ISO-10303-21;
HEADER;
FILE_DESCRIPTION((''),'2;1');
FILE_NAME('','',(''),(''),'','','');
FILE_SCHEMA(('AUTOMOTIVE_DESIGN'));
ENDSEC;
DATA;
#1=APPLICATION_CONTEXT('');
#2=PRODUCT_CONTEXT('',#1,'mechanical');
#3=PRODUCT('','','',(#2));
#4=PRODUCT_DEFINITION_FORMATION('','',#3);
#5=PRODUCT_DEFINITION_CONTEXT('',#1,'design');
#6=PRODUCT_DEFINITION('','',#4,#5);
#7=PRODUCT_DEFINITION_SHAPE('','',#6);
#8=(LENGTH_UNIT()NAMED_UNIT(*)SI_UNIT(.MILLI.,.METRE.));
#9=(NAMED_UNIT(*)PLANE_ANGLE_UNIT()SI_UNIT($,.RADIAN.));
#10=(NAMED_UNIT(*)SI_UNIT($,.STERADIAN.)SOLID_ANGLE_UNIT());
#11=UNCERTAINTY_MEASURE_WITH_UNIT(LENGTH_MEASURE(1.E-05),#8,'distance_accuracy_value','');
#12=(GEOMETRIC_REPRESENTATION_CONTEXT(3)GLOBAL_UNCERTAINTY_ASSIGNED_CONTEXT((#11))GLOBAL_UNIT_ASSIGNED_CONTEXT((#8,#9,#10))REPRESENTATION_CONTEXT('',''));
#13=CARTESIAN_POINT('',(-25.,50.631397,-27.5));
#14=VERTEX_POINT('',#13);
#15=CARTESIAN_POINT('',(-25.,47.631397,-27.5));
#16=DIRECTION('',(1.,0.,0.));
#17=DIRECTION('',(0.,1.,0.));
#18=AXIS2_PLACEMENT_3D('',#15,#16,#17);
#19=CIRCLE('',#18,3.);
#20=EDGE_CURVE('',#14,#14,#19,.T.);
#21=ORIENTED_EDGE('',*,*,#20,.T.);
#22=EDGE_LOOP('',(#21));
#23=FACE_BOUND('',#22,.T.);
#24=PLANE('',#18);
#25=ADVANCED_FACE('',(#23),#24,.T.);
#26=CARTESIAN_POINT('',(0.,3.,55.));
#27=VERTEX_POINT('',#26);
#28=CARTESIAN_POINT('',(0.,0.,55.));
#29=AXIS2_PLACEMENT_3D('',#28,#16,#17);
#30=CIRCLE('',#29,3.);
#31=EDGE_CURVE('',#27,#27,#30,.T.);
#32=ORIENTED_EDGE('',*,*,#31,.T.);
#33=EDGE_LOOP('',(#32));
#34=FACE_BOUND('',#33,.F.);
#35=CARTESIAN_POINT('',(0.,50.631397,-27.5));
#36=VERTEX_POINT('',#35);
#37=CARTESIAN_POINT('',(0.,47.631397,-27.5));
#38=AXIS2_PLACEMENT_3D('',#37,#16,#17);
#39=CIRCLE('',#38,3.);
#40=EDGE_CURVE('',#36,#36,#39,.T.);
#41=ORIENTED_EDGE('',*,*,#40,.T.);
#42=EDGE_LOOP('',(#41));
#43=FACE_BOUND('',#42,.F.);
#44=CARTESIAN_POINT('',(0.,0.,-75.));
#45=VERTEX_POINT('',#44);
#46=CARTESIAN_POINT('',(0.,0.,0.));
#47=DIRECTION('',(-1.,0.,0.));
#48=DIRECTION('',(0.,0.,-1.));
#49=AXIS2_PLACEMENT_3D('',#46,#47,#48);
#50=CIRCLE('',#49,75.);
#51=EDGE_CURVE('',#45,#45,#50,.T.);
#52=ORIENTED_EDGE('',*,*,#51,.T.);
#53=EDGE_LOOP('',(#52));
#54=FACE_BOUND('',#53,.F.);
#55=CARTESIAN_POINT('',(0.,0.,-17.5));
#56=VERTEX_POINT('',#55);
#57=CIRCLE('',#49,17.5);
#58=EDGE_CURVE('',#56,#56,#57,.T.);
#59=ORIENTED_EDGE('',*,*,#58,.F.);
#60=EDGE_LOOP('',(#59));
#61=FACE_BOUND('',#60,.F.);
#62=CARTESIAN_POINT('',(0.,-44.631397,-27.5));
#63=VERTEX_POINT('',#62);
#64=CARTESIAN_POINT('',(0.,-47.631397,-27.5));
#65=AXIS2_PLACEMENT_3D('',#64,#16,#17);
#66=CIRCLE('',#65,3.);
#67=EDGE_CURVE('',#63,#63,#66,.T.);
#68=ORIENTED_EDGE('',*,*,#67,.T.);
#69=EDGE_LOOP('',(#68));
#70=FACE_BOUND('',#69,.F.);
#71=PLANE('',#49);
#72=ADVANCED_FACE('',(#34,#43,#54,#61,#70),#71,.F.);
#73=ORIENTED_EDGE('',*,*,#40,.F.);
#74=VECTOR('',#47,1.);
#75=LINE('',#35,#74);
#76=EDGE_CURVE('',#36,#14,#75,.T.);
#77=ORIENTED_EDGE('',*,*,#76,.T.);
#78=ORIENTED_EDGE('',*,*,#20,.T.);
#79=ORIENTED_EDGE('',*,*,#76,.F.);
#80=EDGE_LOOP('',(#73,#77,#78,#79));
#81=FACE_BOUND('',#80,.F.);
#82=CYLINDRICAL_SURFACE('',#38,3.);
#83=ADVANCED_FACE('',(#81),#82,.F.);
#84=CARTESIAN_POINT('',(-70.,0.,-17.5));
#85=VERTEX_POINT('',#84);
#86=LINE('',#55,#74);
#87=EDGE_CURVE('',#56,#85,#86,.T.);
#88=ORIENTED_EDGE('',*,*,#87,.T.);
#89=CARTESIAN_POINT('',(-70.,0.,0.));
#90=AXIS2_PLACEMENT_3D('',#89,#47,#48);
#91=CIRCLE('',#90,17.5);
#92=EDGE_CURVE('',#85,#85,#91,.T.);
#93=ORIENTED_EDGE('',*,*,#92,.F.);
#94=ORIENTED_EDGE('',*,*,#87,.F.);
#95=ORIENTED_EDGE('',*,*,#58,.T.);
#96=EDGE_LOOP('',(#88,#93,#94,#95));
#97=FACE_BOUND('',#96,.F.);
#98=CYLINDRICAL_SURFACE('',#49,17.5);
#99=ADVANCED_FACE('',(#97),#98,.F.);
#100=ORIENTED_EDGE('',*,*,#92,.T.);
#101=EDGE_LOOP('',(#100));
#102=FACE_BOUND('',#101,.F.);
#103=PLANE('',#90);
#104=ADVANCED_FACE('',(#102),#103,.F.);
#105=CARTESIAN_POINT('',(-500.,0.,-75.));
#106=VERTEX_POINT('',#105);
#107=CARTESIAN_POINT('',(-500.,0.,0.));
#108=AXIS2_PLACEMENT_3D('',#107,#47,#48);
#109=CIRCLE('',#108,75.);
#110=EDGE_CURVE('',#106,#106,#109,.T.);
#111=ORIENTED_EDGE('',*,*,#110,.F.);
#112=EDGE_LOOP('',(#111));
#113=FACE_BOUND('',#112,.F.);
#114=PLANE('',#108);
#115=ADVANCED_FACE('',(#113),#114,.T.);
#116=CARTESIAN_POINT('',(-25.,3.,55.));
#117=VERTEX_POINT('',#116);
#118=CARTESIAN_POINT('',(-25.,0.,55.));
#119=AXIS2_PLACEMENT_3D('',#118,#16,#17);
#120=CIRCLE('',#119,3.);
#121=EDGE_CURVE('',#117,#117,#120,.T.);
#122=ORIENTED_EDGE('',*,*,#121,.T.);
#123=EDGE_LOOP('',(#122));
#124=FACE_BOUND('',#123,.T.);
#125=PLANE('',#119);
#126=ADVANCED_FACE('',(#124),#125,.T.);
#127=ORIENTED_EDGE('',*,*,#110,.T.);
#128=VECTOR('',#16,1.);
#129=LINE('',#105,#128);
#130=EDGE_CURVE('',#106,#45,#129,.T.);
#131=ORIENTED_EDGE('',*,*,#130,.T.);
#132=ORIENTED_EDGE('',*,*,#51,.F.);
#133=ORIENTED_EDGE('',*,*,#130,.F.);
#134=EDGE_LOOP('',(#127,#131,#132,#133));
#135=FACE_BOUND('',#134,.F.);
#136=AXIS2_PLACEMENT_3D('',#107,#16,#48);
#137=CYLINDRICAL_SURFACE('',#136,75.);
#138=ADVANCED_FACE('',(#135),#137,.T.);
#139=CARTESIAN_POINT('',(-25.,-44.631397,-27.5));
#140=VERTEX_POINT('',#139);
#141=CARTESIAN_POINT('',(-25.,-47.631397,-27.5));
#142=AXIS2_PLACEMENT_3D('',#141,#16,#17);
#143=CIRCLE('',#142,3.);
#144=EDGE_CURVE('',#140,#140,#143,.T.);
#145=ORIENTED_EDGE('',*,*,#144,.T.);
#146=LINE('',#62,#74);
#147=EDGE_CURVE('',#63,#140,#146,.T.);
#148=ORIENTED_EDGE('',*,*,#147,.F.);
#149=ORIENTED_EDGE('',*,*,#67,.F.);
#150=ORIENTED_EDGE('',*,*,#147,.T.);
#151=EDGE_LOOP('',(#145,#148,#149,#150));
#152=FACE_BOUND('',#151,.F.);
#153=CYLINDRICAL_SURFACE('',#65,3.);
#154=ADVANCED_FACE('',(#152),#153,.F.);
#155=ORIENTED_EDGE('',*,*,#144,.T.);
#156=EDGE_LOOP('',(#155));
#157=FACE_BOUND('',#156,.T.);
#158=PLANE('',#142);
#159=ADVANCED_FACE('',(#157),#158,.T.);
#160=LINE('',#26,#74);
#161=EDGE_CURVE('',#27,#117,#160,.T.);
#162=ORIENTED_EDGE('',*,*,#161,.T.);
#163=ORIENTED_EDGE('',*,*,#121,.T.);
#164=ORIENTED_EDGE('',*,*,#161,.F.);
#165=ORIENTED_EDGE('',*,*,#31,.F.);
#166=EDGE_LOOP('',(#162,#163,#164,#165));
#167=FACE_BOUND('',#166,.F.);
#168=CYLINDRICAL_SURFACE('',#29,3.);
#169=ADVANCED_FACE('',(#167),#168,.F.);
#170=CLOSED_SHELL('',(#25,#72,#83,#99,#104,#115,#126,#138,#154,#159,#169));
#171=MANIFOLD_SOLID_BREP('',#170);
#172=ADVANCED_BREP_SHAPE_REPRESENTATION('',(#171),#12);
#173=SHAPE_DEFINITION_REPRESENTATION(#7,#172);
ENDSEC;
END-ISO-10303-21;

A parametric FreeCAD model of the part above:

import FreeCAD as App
import Part
import Sketcher
from FreeCAD import Vector
Q = App.Units.Quantity

doc = App.newDocument("Part")
body = doc.addObject("PartDesign::Body", "Body")

sketch1 = body.newObject("Sketcher::SketchObject", "Sketch")
sketch1.AttachmentSupport = (doc.getObject("XZ_Plane"), [""])
sketch1.MapMode = "FlatFace"
sketch1.addGeometry(Part.LineSegment(Vector(-500, -75, 0), Vector(0, -75, 0)), False)
sketch1.addGeometry(Part.LineSegment(Vector(0, -75, 0), Vector(0, -18, 0)), False)
sketch1.addGeometry(Part.LineSegment(Vector(0, -18, 0), Vector(-70, -18, 0)), False)
sketch1.addGeometry(Part.LineSegment(Vector(-70, -18, 0), Vector(-70, 0, 0)), False)
sketch1.addGeometry(Part.LineSegment(Vector(-70, 0, 0), Vector(-500, 0, 0)), False)
sketch1.addGeometry(Part.LineSegment(Vector(-500, 0, 0), Vector(-500, -75, 0)), False)
sketch1.addConstraint(Sketcher.Constraint("Coincident", 0, 2, 1, 1))
sketch1.addConstraint(Sketcher.Constraint("Coincident", 1, 2, 2, 1))
sketch1.addConstraint(Sketcher.Constraint("Coincident", 2, 2, 3, 1))
sketch1.addConstraint(Sketcher.Constraint("Coincident", 3, 2, 4, 1))
sketch1.addConstraint(Sketcher.Constraint("Coincident", 4, 2, 5, 1))
sketch1.addConstraint(Sketcher.Constraint("Coincident", 5, 2, 0, 1))
sketch1.addConstraint(Sketcher.Constraint("Horizontal", 0))
sketch1.addConstraint(Sketcher.Constraint("Vertical", 1))
sketch1.addConstraint(Sketcher.Constraint("Horizontal", 2))
sketch1.addConstraint(Sketcher.Constraint("Vertical", 3))
sketch1.addConstraint(Sketcher.Constraint("Horizontal", 4))
sketch1.addConstraint(Sketcher.Constraint("Vertical", 5))
sketch1.addConstraint(Sketcher.Constraint("PointOnObject", 0, 2, -2))
sketch1.addConstraint(Sketcher.Constraint("PointOnObject", 3, 2, -1))
sketch1.addConstraint(Sketcher.Constraint("DistanceX", 0, 1, 0, 2, Q("500 mm")))
sketch1.addConstraint(Sketcher.Constraint("DistanceX", 2, 2, 2, 1, Q("70 mm")))
sketch1.addConstraint(Sketcher.Constraint("DistanceY", 5, 2, 5, 1, Q("75 mm")))
sketch1.addConstraint(Sketcher.Constraint("DistanceY", 1, 1, 1, 2, Q("57.5 mm")))
revolution = body.newObject("PartDesign::Revolution", "Revolution")
revolution.Profile = sketch1
revolution.ReferenceAxis = (sketch1, ["H_Axis"])
revolution.Angle = 360

sketch2 = body.newObject("Sketcher::SketchObject", "Sketch001")
sketch2.AttachmentSupport = (doc.getObject("YZ_Plane"), [""])
sketch2.MapMode = "FlatFace"
sketch2.addGeometry(Part.Circle(Vector(0, 55, 0), Vector(0, 0, 1), 3), False)
sketch2.addGeometry(Part.Circle(Vector(-47.6, -27.5, 0), Vector(0, 0, 1), 3), False)
sketch2.addGeometry(Part.Circle(Vector(47.6, -27.5, 0), Vector(0, 0, 1), 3), False)
sketch2.addConstraint(Sketcher.Constraint("Equal", 0, 1))
sketch2.addConstraint(Sketcher.Constraint("Equal", 1, 2))
sketch2.addConstraint(Sketcher.Constraint("Symmetric", 1, 3, 2, 3, -2))
sketch2.addConstraint(Sketcher.Constraint("PointOnObject", 0, 3, -2))
sketch2.addConstraint(Sketcher.Constraint("Diameter", 0, Q("6 mm")))
sketch2.addConstraint(Sketcher.Constraint("DistanceY", -1, 1, 0, 3, Q("55 mm")))
sketch2.addConstraint(Sketcher.Constraint("DistanceY", 1, 3, -1, 1, Q("27.5 mm")))
sketch2.addConstraint(Sketcher.Constraint("DistanceX", 1, 3, -1, 1, Q("47.631397 mm")))
pocket1 = body.newObject("PartDesign::Pocket", "Pocket")
pocket1.Profile = sketch2
pocket1.Length = 25

doc.recompute()
